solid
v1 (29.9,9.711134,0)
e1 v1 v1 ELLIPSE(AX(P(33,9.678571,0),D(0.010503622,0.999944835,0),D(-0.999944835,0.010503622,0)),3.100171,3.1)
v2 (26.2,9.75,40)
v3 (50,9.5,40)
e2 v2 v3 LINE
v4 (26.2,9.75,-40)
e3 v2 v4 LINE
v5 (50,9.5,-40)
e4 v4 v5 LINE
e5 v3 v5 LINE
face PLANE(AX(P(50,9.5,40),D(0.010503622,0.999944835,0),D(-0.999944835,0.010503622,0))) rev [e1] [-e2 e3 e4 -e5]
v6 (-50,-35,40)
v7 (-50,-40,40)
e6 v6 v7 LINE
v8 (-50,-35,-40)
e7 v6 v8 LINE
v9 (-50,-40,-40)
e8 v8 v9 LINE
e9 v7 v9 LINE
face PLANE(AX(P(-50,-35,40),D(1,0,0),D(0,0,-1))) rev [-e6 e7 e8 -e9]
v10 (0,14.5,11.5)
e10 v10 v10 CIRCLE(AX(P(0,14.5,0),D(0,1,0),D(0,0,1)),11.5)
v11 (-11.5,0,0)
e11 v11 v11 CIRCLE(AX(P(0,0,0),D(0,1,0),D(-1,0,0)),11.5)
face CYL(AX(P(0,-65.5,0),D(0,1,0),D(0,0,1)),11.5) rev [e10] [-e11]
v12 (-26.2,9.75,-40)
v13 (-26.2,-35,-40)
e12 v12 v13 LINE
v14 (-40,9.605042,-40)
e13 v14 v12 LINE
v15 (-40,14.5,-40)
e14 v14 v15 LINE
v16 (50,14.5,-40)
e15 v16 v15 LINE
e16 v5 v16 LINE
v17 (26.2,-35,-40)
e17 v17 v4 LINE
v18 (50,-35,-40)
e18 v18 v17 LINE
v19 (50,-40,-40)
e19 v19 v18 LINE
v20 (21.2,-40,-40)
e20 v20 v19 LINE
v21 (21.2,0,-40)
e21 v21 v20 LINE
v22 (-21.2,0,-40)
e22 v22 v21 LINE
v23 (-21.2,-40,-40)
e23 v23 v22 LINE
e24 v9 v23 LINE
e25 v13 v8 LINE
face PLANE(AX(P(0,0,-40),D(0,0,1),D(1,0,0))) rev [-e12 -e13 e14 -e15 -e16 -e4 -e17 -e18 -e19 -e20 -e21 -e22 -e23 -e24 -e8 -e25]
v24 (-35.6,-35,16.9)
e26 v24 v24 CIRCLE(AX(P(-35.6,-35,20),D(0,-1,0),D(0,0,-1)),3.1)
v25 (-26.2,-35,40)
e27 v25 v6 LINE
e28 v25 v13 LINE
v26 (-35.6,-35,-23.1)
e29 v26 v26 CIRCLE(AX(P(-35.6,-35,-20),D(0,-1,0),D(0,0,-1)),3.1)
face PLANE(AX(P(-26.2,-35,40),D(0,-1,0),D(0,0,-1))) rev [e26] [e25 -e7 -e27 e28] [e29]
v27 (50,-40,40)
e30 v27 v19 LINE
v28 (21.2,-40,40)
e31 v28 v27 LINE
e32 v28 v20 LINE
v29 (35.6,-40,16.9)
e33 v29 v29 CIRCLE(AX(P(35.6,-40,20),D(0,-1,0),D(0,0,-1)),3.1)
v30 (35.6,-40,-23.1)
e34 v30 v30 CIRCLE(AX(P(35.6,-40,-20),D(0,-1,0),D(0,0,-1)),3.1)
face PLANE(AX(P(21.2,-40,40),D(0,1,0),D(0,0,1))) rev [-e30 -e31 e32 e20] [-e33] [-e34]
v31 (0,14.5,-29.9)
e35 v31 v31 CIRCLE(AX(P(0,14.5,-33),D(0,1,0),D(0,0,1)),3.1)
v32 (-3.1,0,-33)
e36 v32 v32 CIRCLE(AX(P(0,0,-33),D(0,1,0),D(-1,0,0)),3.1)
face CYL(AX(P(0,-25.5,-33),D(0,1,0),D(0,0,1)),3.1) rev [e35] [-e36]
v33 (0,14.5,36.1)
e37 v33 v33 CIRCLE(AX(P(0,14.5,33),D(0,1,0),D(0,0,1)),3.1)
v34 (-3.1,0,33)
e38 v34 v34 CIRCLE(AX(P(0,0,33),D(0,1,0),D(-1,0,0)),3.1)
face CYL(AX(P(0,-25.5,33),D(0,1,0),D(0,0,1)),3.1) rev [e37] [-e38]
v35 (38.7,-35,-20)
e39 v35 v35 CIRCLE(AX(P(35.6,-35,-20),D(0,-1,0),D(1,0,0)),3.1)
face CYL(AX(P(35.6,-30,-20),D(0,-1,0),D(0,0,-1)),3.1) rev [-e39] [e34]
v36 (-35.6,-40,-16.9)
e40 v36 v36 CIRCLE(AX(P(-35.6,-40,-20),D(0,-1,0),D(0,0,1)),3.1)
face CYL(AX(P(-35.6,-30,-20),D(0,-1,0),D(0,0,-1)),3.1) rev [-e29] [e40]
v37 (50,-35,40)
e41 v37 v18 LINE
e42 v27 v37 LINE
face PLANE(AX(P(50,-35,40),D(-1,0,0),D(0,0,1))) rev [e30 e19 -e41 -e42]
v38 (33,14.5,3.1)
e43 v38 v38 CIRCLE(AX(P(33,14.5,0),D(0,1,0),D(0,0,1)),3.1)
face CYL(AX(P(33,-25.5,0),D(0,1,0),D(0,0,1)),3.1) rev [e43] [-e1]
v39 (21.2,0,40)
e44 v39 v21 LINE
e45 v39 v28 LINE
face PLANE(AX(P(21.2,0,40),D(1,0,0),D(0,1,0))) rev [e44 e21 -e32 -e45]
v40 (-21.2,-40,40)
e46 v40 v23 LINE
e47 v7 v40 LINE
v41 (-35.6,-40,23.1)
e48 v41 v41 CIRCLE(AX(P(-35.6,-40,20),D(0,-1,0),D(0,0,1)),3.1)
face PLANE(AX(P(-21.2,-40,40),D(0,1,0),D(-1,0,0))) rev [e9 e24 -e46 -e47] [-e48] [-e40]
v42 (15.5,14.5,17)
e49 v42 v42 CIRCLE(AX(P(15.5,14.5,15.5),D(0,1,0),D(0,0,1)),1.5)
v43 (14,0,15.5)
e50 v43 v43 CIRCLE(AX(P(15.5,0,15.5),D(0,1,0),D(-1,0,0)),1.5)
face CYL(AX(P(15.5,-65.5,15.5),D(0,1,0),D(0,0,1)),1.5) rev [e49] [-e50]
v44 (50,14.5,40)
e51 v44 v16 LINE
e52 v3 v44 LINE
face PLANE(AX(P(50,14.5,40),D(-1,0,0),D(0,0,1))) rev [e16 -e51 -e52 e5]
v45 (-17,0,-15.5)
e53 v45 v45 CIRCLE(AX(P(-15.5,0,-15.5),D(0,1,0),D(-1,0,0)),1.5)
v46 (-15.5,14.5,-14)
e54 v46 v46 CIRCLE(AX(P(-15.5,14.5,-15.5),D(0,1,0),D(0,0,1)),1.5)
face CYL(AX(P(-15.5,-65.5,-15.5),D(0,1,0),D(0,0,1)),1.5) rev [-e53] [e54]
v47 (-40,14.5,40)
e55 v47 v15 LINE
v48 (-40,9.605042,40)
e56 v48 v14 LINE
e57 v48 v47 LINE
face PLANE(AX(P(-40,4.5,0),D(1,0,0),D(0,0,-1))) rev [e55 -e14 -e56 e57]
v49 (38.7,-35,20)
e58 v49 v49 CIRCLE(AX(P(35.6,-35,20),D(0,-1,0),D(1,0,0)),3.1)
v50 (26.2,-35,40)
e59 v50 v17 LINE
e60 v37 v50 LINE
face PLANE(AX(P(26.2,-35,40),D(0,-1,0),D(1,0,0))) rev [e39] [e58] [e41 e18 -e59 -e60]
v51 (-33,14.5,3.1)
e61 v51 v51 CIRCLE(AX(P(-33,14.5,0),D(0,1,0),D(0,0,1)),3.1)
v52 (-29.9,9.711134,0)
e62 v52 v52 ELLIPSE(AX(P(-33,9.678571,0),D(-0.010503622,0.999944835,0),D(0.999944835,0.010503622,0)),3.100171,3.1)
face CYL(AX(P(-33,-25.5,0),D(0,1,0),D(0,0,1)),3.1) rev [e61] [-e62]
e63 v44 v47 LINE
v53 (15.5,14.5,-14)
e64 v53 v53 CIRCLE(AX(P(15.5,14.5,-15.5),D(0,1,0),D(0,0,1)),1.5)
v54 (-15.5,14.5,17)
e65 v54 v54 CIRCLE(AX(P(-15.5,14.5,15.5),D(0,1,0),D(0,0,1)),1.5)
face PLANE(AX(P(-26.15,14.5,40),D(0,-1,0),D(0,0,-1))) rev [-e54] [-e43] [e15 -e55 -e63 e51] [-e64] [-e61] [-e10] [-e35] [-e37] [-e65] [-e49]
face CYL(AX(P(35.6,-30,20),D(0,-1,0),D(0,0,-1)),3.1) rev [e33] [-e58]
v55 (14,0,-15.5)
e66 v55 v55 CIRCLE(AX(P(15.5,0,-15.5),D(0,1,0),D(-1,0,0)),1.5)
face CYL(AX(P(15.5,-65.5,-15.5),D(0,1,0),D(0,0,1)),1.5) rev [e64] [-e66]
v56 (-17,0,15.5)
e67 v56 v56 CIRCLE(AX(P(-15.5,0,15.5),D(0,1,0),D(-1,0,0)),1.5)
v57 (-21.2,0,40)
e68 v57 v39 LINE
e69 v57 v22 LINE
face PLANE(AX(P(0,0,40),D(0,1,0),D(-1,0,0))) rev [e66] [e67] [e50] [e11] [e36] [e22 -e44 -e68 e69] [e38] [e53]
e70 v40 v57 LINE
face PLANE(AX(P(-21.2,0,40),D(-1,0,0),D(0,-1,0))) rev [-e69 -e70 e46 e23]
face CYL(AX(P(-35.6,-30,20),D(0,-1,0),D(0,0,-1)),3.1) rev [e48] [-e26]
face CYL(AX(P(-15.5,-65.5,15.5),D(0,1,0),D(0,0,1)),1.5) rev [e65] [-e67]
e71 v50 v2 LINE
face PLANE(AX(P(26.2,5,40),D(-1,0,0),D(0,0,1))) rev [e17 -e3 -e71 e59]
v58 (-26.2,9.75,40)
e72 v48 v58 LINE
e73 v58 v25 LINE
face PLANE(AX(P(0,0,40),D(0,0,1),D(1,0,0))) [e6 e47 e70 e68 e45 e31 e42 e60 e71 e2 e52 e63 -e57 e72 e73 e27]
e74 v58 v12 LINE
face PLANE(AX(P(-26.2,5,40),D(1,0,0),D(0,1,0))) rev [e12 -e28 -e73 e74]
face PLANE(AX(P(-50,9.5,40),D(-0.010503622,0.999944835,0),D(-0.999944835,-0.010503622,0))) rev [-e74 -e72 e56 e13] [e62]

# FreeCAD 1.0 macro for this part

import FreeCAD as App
import Part
import Sketcher

V = App.Vector

doc = App.newDocument("Part")
body = doc.addObject("PartDesign::Body", "Body")

# Sketch on XY plane
sketch1 = body.newObject("Sketcher::SketchObject", "Sketch")
sketch1.AttachmentSupport = (doc.getObject("XY_Plane"), [""])
sketch1.MapMode = "FlatFace"
sketch1.addGeometry(Part.LineSegment(V(21, 0, 0), V(21, -40, 0)), False)
sketch1.addGeometry(Part.LineSegment(V(21, -40, 0), V(50, -40, 0)), False)
sketch1.addGeometry(Part.LineSegment(V(50, -40, 0), V(50, -35, 0)), False)
sketch1.addGeometry(Part.LineSegment(V(50, -35, 0), V(26, -35, 0)), False)
sketch1.addGeometry(Part.LineSegment(V(26, -35, 0), V(26, 10, 0)), False)
sketch1.addGeometry(Part.LineSegment(V(26, 10, 0), V(50, 10, 0)), False)
sketch1.addGeometry(Part.LineSegment(V(50, 10, 0), V(50, 14, 0)), False)
sketch1.addGeometry(Part.LineSegment(V(50, 14, 0), V(-50, 14, 0)), False)
sketch1.addGeometry(Part.LineSegment(V(-50, 14, 0), V(-50, 10, 0)), False)
sketch1.addGeometry(Part.LineSegment(V(-50, 10, 0), V(-26, 10, 0)), False)
sketch1.addGeometry(Part.LineSegment(V(-26, 10, 0), V(-26, -35, 0)), False)
sketch1.addGeometry(Part.LineSegment(V(-26, -35, 0), V(-50, -35, 0)), False)
sketch1.addGeometry(Part.LineSegment(V(-50, -35, 0), V(-50, -40, 0)), False)
sketch1.addGeometry(Part.LineSegment(V(-50, -40, 0), V(-21, -40, 0)), False)
sketch1.addGeometry(Part.LineSegment(V(-21, -40, 0), V(-21, 0, 0)), False)
sketch1.addGeometry(Part.LineSegment(V(-21, 0, 0), V(21, 0, 0)), False)
sketch1.addConstraint(Sketcher.Constraint("Coincident", 0, 2, 1, 1))
sketch1.addConstraint(Sketcher.Constraint("Coincident", 1, 2, 2, 1))
sketch1.addConstraint(Sketcher.Constraint("Coincident", 2, 2, 3, 1))
sketch1.addConstraint(Sketcher.Constraint("Coincident", 3, 2, 4, 1))
sketch1.addConstraint(Sketcher.Constraint("Coincident", 4, 2, 5, 1))
sketch1.addConstraint(Sketcher.Constraint("Coincident", 5, 2, 6, 1))
sketch1.addConstraint(Sketcher.Constraint("Coincident", 6, 2, 7, 1))
sketch1.addConstraint(Sketcher.Constraint("Coincident", 7, 2, 8, 1))
sketch1.addConstraint(Sketcher.Constraint("Coincident", 8, 2, 9, 1))
sketch1.addConstraint(Sketcher.Constraint("Coincident", 9, 2, 10, 1))
sketch1.addConstraint(Sketcher.Constraint("Coincident", 10, 2, 11, 1))
sketch1.addConstraint(Sketcher.Constraint("Coincident", 11, 2, 12, 1))
sketch1.addConstraint(Sketcher.Constraint("Coincident", 12, 2, 13, 1))
sketch1.addConstraint(Sketcher.Constraint("Coincident", 13, 2, 14, 1))
sketch1.addConstraint(Sketcher.Constraint("Coincident", 14, 2, 15, 1))
sketch1.addConstraint(Sketcher.Constraint("Coincident", 15, 2, 0, 1))
sketch1.addConstraint(Sketcher.Constraint("Vertical", 0))
sketch1.addConstraint(Sketcher.Constraint("Horizontal", 1))
sketch1.addConstraint(Sketcher.Constraint("Vertical", 2))
sketch1.addConstraint(Sketcher.Constraint("Horizontal", 3))
sketch1.addConstraint(Sketcher.Constraint("Vertical", 4))
sketch1.addConstraint(Sketcher.Constraint("Vertical", 6))
sketch1.addConstraint(Sketcher.Constraint("Horizontal", 7))
sketch1.addConstraint(Sketcher.Constraint("Vertical", 8))
sketch1.addConstraint(Sketcher.Constraint("Vertical", 10))
sketch1.addConstraint(Sketcher.Constraint("Horizontal", 11))
sketch1.addConstraint(Sketcher.Constraint("Vertical", 12))
sketch1.addConstraint(Sketcher.Constraint("Horizontal", 13))
sketch1.addConstraint(Sketcher.Constraint("Vertical", 14))
sketch1.addConstraint(Sketcher.Constraint("Horizontal", 15))
sketch1.addConstraint(Sketcher.Constraint("Symmetric", 14, 2, 15, 2, -1, 1))
sketch1.addConstraint(Sketcher.Constraint("Symmetric", 5, 2, 8, 2, -2))
sketch1.addConstraint(Sketcher.Constraint("Symmetric", 4, 2, 9, 2, -2))
sketch1.addConstraint(Sketcher.Constraint("Symmetric", 2, 2, 11, 2, -2))
sketch1.addConstraint(Sketcher.Constraint("Horizontal", 1, 2, 12, 2))
sketch1.addConstraint(Sketcher.Constraint("Vertical", 2, 2, 5, 2))
sketch1.addConstraint(Sketcher.Constraint("Equal", 2, 6))
sketch1.addConstraint(Sketcher.Constraint("DistanceX", 7, 2, 7, 1, 100.0))
sketch1.addConstraint(Sketcher.Constraint("DistanceY", 0, 2, 0, 1, 40.0))
sketch1.addConstraint(Sketcher.Constraint("DistanceY", 2, 1, 2, 2, 5.0))
sketch1.addConstraint(Sketcher.Constraint("DistanceX", 1, 1, 1, 2, 28.8))
sketch1.addConstraint(Sketcher.Constraint("DistanceX", 3, 2, 3, 1, 23.8))
sketch1.addConstraint(Sketcher.Constraint("DistanceY", 4, 1, 4, 2, 44.75))
sketch1.addConstraint(Sketcher.Constraint("DistanceY", -1, 1, 5, 2, 9.5))
pad1 = body.newObject("PartDesign::Pad", "Pad")
pad1.Profile = sketch1
pad1.Length = 80
pad1.Midplane = True

# Sketch on XZ plane
sketch2 = body.newObject("Sketcher::SketchObject", "Sketch001")
sketch2.AttachmentSupport = (doc.getObject("XZ_Plane"), [""])
sketch2.MapMode = "FlatFace"
sketch2.AttachmentOffset = App.Placement(V(0, 0, -14.5), App.Rotation())
sketch2.addGeometry(Part.Circle(V(0, 0, 0), V(0, 0, 1), 11.5), False)
sketch2.addGeometry(Part.Circle(V(-15.5, -15.5, 0), V(0, 0, 1), 1.5), False)
sketch2.addGeometry(Part.Circle(V(-15.5, 15.5, 0), V(0, 0, 1), 1.5), False)
sketch2.addGeometry(Part.Circle(V(15.5, 15.5, 0), V(0, 0, 1), 1.5), False)
sketch2.addGeometry(Part.Circle(V(15.5, -15.5, 0), V(0, 0, 1), 1.5), False)
sketch2.addConstraint(Sketcher.Constraint("Coincident", 0, 3, -1, 1))
sketch2.addConstraint(Sketcher.Constraint("Equal", 1, 2))
sketch2.addConstraint(Sketcher.Constraint("Equal", 2, 3))
sketch2.addConstraint(Sketcher.Constraint("Equal", 3, 4))
sketch2.addConstraint(Sketcher.Constraint("Symmetric", 1, 3, 3, 3, -1, 1))
sketch2.addConstraint(Sketcher.Constraint("Symmetric", 2, 3, 4, 3, -1, 1))
sketch2.addConstraint(Sketcher.Constraint("Symmetric", 2, 3, 3, 3, -2))
sketch2.addConstraint(Sketcher.Constraint("Diameter", 0, 23.0))
sketch2.addConstraint(Sketcher.Constraint("Diameter", 1, 3.0))
sketch2.addConstraint(Sketcher.Constraint("DistanceY", 1, 3, 2, 3, 31.0))
sketch2.addConstraint(Sketcher.Constraint("DistanceX", 2, 3, 3, 3, 31.0))
pocket1 = body.newObject("PartDesign::Pocket", "Pocket")
pocket1.Profile = sketch2
pocket1.Length = 80
pocket1.Reversed = True

# Sketch on XZ plane
sketch3 = body.newObject("Sketcher::SketchObject", "Sketch002")
sketch3.AttachmentSupport = (doc.getObject("XZ_Plane"), [""])
sketch3.MapMode = "FlatFace"
sketch3.AttachmentOffset = App.Placement(V(0, 0, -14.5), App.Rotation())
sketch3.addGeometry(Part.Circle(V(33, 0, 0), V(0, 0, 1), 3.1), False)
sketch3.addGeometry(Part.Circle(V(0, 33, 0), V(0, 0, 1), 3.1), False)
sketch3.addGeometry(Part.Circle(V(-33, 0, 0), V(0, 0, 1), 3.1), False)
sketch3.addGeometry(Part.Circle(V(0, -33, 0), V(0, 0, 1), 3.1), False)
sketch3.addConstraint(Sketcher.Constraint("Equal", 0, 1))
sketch3.addConstraint(Sketcher.Constraint("Equal", 1, 2))
sketch3.addConstraint(Sketcher.Constraint("Equal", 2, 3))
sketch3.addConstraint(Sketcher.Constraint("Symmetric", 0, 3, 2, 3, -1, 1))
sketch3.addConstraint(Sketcher.Constraint("Symmetric", 1, 3, 3, 3, -1, 1))
sketch3.addConstraint(Sketcher.Constraint("PointOnObject", 0, 3, -1))
sketch3.addConstraint(Sketcher.Constraint("PointOnObject", 1, 3, -2))
sketch3.addConstraint(Sketcher.Constraint("Diameter", 0, 6.2))
sketch3.addConstraint(Sketcher.Constraint("DistanceX", -1, 1, 0, 3, 33.0))
sketch3.addConstraint(Sketcher.Constraint("DistanceY", -1, 1, 1, 3, 33.0))
pocket2 = body.newObject("PartDesign::Pocket", "Pocket001")
pocket2.Profile = sketch3
pocket2.Length = 40
pocket2.Reversed = True

# Sketch on XZ plane
sketch4 = body.newObject("Sketcher::SketchObject", "Sketch003")
sketch4.AttachmentSupport = (doc.getObject("XZ_Plane"), [""])
sketch4.MapMode = "FlatFace"
sketch4.AttachmentOffset = App.Placement(V(0, 0, 40), App.Rotation())
sketch4.addGeometry(Part.Circle(V(35.6, 20, 0), V(0, 0, 1), 3.1), False)
sketch4.addGeometry(Part.Circle(V(35.6, -20, 0), V(0, 0, 1), 3.1), False)
sketch4.addGeometry(Part.Circle(V(-35.6, -20, 0), V(0, 0, 1), 3.1), False)
sketch4.addGeometry(Part.Circle(V(-35.6, 20, 0), V(0, 0, 1), 3.1), False)
sketch4.addConstraint(Sketcher.Constraint("Equal", 0, 1))
sketch4.addConstraint(Sketcher.Constraint("Equal", 1, 2))
sketch4.addConstraint(Sketcher.Constraint("Equal", 2, 3))
sketch4.addConstraint(Sketcher.Constraint("Symmetric", 0, 3, 2, 3, -1, 1))
sketch4.addConstraint(Sketcher.Constraint("Symmetric", 1, 3, 3, 3, -1, 1))
sketch4.addConstraint(Sketcher.Constraint("Symmetric", 1, 3, 2, 3, -2))
sketch4.addConstraint(Sketcher.Constraint("Diameter", 0, 6.2))
sketch4.addConstraint(Sketcher.Constraint("DistanceY", -1, 1, 0, 3, 20.0))
sketch4.addConstraint(Sketcher.Constraint("DistanceX", -1, 1, 0, 3, 35.6))
pocket3 = body.newObject("PartDesign::Pocket", "Pocket002")
pocket3.Profile = sketch4
pocket3.Length = 10

# Sketch on XZ plane
sketch5 = body.newObject("Sketcher::SketchObject", "Sketch004")
sketch5.AttachmentSupport = (doc.getObject("XZ_Plane"), [""])
sketch5.MapMode = "FlatFace"
sketch5.AttachmentOffset = App.Placement(V(0, 0, -14.5), App.Rotation())
sketch5.addGeometry(Part.LineSegment(V(-50, -40, 0), V(-50, 40, 0)), False)
sketch5.addGeometry(Part.LineSegment(V(-50, 40, 0), V(-40, 40, 0)), False)
sketch5.addGeometry(Part.LineSegment(V(-40, 40, 0), V(-40, -40, 0)), False)
sketch5.addGeometry(Part.LineSegment(V(-40, -40, 0), V(-50, -40, 0)), False)
sketch5.addConstraint(Sketcher.Constraint("Coincident", 0, 2, 1, 1))
sketch5.addConstraint(Sketcher.Constraint("Coincident", 1, 2, 2, 1))
sketch5.addConstraint(Sketcher.Constraint("Coincident", 2, 2, 3, 1))
sketch5.addConstraint(Sketcher.Constraint("Coincident", 3, 2, 0, 1))
sketch5.addConstraint(Sketcher.Constraint("Vertical", 0))
sketch5.addConstraint(Sketcher.Constraint("Horizontal", 1))
sketch5.addConstraint(Sketcher.Constraint("Vertical", 2))
sketch5.addConstraint(Sketcher.Constraint("Horizontal", 3))
sketch5.addConstraint(Sketcher.Constraint("DistanceX", 1, 1, 1, 2, 10.0))
sketch5.addConstraint(Sketcher.Constraint("DistanceY", 0, 1, 0, 2, 80.0))
sketch5.addConstraint(Sketcher.Constraint("DistanceX", 0, 2, -1, 1, 50.0))
sketch5.addConstraint(Sketcher.Constraint("DistanceY", -1, 1, 0, 2, 40.0))
pocket4 = body.newObject("PartDesign::Pocket", "Pocket003")
pocket4.Profile = sketch5
pocket4.Length = 10
pocket4.Reversed = True

doc.recompute()
